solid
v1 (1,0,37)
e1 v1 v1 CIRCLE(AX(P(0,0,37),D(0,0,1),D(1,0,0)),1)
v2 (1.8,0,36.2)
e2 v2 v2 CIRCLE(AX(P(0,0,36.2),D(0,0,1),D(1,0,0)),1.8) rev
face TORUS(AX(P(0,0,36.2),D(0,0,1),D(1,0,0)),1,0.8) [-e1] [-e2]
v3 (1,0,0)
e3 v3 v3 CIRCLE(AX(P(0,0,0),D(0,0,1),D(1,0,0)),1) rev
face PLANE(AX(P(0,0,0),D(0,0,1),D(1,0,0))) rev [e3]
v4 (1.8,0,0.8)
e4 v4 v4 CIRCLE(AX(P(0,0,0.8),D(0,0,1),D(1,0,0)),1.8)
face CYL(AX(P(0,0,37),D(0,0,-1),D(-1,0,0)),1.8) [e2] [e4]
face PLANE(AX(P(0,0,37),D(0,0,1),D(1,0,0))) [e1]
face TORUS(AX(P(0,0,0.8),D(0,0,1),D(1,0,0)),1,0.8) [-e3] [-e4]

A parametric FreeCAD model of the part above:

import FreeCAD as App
import Part
import Sketcher
from FreeCAD import Vector
Q = App.Units.Quantity


def edges_at(feature, points):
    """Names of the edges that pass closest to the given points."""
    edges = feature.Shape.Edges
    near = lambda p: min(range(len(edges)), key=lambda i: edges[i].distToShape(Part.Vertex(*p))[0])
    return sorted({f"Edge{near(p) + 1}" for p in points})

doc = App.newDocument("Part")
params = doc.addObject("Spreadsheet::Sheet", "Params")
for row, (alias, value) in enumerate([
    ("sketch1_diameter", "3.6 mm"),
    ("pad1_length", "37 mm"),
    ("fillet_radius", "0.8 mm"),
], start=1):
    params.set(f"A{row}", alias)
    params.set(f"B{row}", "=" + value)
    params.setAlias(f"B{row}", alias)

body = doc.addObject("PartDesign::Body", "Body")

sketch1 = body.newObject("Sketcher::SketchObject", "Sketch")
sketch1.AttachmentSupport = (doc.getObject("XY_Plane"), [""])
sketch1.MapMode = "FlatFace"
sketch1.addGeometry(Part.Circle(Vector(0, 0, 0), Vector(0, 0, 1), 1.8), False)
sketch1.addConstraint([
    Sketcher.Constraint("Coincident", 0, 3, -1, 1),
    Sketcher.Constraint("Diameter", 0, Q("3.6 mm")),
])
sketch1.setExpression("Constraints[1]", "Params.sketch1_diameter")
pad1 = body.newObject("PartDesign::Pad", "Pad")
pad1.Profile = sketch1
pad1.setExpression("Length", "Params.pad1_length")
doc.recompute()

fillet = body.newObject("PartDesign::Fillet", "Fillet")
fillet.Base = (pad1, edges_at(pad1, [(-1.8, 0, 0), (-1.8, 0, 37)]))
fillet.setExpression("Radius", "Params.fillet_radius")

doc.recompute()
